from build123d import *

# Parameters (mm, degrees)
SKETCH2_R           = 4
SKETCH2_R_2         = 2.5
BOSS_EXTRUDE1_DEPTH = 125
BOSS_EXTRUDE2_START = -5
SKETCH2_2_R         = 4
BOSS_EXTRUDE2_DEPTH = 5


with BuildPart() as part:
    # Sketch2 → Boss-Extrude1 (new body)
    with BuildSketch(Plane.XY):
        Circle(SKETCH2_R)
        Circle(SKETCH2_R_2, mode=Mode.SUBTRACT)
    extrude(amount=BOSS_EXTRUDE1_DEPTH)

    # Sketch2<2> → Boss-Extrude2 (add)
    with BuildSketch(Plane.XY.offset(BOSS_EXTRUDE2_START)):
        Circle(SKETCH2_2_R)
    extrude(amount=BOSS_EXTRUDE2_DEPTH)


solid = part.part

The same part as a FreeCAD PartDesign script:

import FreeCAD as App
import Part
import Sketcher

V = App.Vector
Q = App.Units.Quantity

doc = App.newDocument("Part")
body = doc.addObject("PartDesign::Body", "Body")

# Sketch on XY plane
sketch1 = body.newObject("Sketcher::SketchObject", "Sketch")
sketch1.AttachmentSupport = (doc.getObject("XY_Plane"), [""])
sketch1.MapMode = "FlatFace"
sketch1.addGeometry([
    Part.Circle(V(0, 0, 0), V(0, 0, 1), 4),
    Part.Circle(V(0, 0, 0), V(0, 0, 1), 2.5),
], False)
sketch1.addConstraint([
    Sketcher.Constraint("Coincident", 0, 3, -1, 1),
    Sketcher.Constraint("Coincident", 1, 3, -1, 1),
    Sketcher.Constraint("Diameter", 0, Q("8 mm")),
    Sketcher.Constraint("Diameter", 1, Q("5 mm")),
])
pad1 = body.newObject("PartDesign::Pad", "Pad")
pad1.Profile = sketch1
pad1.Length = 125

# Sketch on XY plane
sketch2 = body.newObject("Sketcher::SketchObject", "Sketch001")
sketch2.AttachmentSupport = (doc.getObject("XY_Plane"), [""])
sketch2.MapMode = "FlatFace"
sketch2.AttachmentOffset = App.Placement(V(0, 0, -5), App.Rotation())
sketch2.addGeometry(Part.Circle(V(0, 0, 0), V(0, 0, 1), 4), False)
sketch2.addConstraint([
    Sketcher.Constraint("Coincident", 0, 3, -1, 1),
    Sketcher.Constraint("Diameter", 0, Q("8 mm")),
])
pad2 = body.newObject("PartDesign::Pad", "Pad001")
pad2.Profile = sketch2
pad2.Length = 5

doc.recompute()
